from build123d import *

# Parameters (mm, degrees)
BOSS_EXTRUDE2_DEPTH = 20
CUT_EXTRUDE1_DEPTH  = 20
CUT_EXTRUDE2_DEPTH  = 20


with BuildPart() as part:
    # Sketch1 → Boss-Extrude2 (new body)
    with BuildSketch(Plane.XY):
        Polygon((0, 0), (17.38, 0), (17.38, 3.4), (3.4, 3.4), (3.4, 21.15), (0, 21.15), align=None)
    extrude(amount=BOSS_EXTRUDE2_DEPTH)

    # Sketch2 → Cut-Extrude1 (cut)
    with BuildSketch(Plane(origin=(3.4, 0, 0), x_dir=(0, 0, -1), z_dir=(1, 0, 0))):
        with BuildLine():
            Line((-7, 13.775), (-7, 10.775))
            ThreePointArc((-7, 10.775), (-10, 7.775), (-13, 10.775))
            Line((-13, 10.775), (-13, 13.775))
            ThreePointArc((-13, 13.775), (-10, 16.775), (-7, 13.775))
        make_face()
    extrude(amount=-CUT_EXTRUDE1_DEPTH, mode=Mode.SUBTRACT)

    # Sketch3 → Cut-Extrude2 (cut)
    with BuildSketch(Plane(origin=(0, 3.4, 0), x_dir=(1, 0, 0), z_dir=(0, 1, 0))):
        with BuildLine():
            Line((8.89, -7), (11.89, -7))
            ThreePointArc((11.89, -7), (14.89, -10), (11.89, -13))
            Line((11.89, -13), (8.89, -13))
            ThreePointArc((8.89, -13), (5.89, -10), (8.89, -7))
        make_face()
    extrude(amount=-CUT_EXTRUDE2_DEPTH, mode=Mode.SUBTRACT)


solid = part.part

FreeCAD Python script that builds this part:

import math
import FreeCAD as App
import Part
import Sketcher

V = App.Vector


def add_polygon(sketch, points):
    """Adds a closed chain of lines whose ends are joined by coincident constraints."""
    first, n = sketch.GeometryCount, len(points)
    for a, b in zip(points, points[1:] + points[:1]):
        sketch.addGeometry(Part.LineSegment(App.Vector(*a, 0), App.Vector(*b, 0)), False)
    for i in range(n):
        sketch.addConstraint(Sketcher.Constraint("Coincident", first + i, 2, first + (i + 1) % n, 1))

doc = App.newDocument("Part")
body = doc.addObject("PartDesign::Body", "Body")

# Sketch on XY plane
sketch1 = doc.addObject("Sketcher::SketchObject", "Sketch")
body.addObject(sketch1)
sketch1.AttachmentSupport = (doc.XY_Plane, [""])
sketch1.MapMode = "FlatFace"
add_polygon(sketch1, [(0, 0), (17.4, 0), (17.4, 3.4), (3.4, 3.4), (3.4, 21.1), (0, 21.1)])  # lines 0-5
sketch1.addConstraint(Sketcher.Constraint("Horizontal", 0))
sketch1.addConstraint(Sketcher.Constraint("Vertical", 1))
sketch1.addConstraint(Sketcher.Constraint("Horizontal", 2))
sketch1.addConstraint(Sketcher.Constraint("Vertical", 3))
sketch1.addConstraint(Sketcher.Constraint("Horizontal", 4))
sketch1.addConstraint(Sketcher.Constraint("Vertical", 5))
sketch1.addConstraint(Sketcher.Constraint("Coincident", 5, 2, -1, 1))
sketch1.addConstraint(Sketcher.Constraint("Equal", 4, 1))
sketch1.addConstraint(Sketcher.Constraint("DistanceX", 4, 2, 4, 1, 3.4))
sketch1.addConstraint(Sketcher.Constraint("DistanceX", 0, 1, 0, 2, 17.38))
sketch1.addConstraint(Sketcher.Constraint("DistanceY", 3, 1, 3, 2, 17.75))
pad1 = doc.addObject("PartDesign::Pad", "Pad")
body.addObject(pad1)
pad1.Profile = sketch1
pad1.Length = 20

# Sketch on YZ plane
sketch2 = doc.addObject("Sketcher::SketchObject", "Sketch001")
body.addObject(sketch2)
sketch2.AttachmentSupport = (doc.YZ_Plane, [""])
sketch2.MapMode = "FlatFace"
sketch2.AttachmentOffset = App.Placement(V(0, 0, 3.4), App.Rotation())
sketch2.addGeometry(Part.LineSegment(V(10.8, 7, 0), V(13.8, 7, 0)), False)
sketch2.addGeometry(Part.ArcOfCircle(Part.Circle(V(13.8, 10, 0), V(0, 0, 1), 3), math.radians(-90), math.radians(90)), False)
sketch2.addGeometry(Part.LineSegment(V(13.8, 13, 0), V(10.8, 13, 0)), False)
sketch2.addGeometry(Part.ArcOfCircle(Part.Circle(V(10.8, 10, 0), V(0, 0, 1), 3), math.radians(90), math.radians(270)), False)
sketch2.addConstraint(Sketcher.Constraint("Tangent", 0, 2, 1, 1))
sketch2.addConstraint(Sketcher.Constraint("Tangent", 1, 2, 2, 1))
sketch2.addConstraint(Sketcher.Constraint("Tangent", 2, 2, 3, 1))
sketch2.addConstraint(Sketcher.Constraint("Tangent", 3, 2, 0, 1))
sketch2.addConstraint(Sketcher.Constraint("Horizontal", 0))
sketch2.addConstraint(Sketcher.Constraint("Horizontal", 2))
sketch2.addConstraint(Sketcher.Constraint("Radius", 1, 3.0))
sketch2.addConstraint(Sketcher.Constraint("DistanceX", 0, 1, 0, 2, 3.0))
sketch2.addConstraint(Sketcher.Constraint("DistanceY", -1, 1, 1, 3, 10.0))
sketch2.addConstraint(Sketcher.Constraint("DistanceX", -1, 1, 1, 3, 13.775))
pocket1 = doc.addObject("PartDesign::Pocket", "Pocket")
body.addObject(pocket1)
pocket1.Profile = sketch2
pocket1.Length = 20

# Sketch on XZ plane
sketch3 = doc.addObject("Sketcher::SketchObject", "Sketch002")
body.addObject(sketch3)
sketch3.AttachmentSupport = (doc.XZ_Plane, [""])
sketch3.MapMode = "FlatFace"
sketch3.AttachmentOffset = App.Placement(V(0, 0, -3.4), App.Rotation())
sketch3.addGeometry(Part.LineSegment(V(11.9, 7, 0), V(8.9, 7, 0)), False)
sketch3.addGeometry(Part.ArcOfCircle(Part.Circle(V(8.9, 10, 0), V(0, 0, 1), 3), math.radians(90), math.radians(270)), False)
sketch3.addGeometry(Part.LineSegment(V(8.9, 13, 0), V(11.9, 13, 0)), False)
sketch3.addGeometry(Part.ArcOfCircle(Part.Circle(V(11.9, 10, 0), V(0, 0, 1), 3), math.radians(-90), math.radians(90)), False)
sketch3.addConstraint(Sketcher.Constraint("Tangent", 0, 2, 1, 2))
sketch3.addConstraint(Sketcher.Constraint("Tangent", 1, 1, 2, 1))
sketch3.addConstraint(Sketcher.Constraint("Tangent", 2, 2, 3, 2))
sketch3.addConstraint(Sketcher.Constraint("Tangent", 3, 1, 0, 1))
sketch3.addConstraint(Sketcher.Constraint("Horizontal", 0))
sketch3.addConstraint(Sketcher.Constraint("Horizontal", 2))
sketch3.addConstraint(Sketcher.Constraint("Radius", 1, 3.0))
sketch3.addConstraint(Sketcher.Constraint("DistanceX", 0, 2, 0, 1, 3.0))
sketch3.addConstraint(Sketcher.Constraint("DistanceY", -1, 1, 1, 3, 10.0))
sketch3.addConstraint(Sketcher.Constraint("DistanceX", -1, 1, 1, 3, 8.89))
pocket2 = doc.addObject("PartDesign::Pocket", "Pocket001")
body.addObject(pocket2)
pocket2.Profile = sketch3
pocket2.Length = 20
pocket2.Reversed = True

doc.recompute()
